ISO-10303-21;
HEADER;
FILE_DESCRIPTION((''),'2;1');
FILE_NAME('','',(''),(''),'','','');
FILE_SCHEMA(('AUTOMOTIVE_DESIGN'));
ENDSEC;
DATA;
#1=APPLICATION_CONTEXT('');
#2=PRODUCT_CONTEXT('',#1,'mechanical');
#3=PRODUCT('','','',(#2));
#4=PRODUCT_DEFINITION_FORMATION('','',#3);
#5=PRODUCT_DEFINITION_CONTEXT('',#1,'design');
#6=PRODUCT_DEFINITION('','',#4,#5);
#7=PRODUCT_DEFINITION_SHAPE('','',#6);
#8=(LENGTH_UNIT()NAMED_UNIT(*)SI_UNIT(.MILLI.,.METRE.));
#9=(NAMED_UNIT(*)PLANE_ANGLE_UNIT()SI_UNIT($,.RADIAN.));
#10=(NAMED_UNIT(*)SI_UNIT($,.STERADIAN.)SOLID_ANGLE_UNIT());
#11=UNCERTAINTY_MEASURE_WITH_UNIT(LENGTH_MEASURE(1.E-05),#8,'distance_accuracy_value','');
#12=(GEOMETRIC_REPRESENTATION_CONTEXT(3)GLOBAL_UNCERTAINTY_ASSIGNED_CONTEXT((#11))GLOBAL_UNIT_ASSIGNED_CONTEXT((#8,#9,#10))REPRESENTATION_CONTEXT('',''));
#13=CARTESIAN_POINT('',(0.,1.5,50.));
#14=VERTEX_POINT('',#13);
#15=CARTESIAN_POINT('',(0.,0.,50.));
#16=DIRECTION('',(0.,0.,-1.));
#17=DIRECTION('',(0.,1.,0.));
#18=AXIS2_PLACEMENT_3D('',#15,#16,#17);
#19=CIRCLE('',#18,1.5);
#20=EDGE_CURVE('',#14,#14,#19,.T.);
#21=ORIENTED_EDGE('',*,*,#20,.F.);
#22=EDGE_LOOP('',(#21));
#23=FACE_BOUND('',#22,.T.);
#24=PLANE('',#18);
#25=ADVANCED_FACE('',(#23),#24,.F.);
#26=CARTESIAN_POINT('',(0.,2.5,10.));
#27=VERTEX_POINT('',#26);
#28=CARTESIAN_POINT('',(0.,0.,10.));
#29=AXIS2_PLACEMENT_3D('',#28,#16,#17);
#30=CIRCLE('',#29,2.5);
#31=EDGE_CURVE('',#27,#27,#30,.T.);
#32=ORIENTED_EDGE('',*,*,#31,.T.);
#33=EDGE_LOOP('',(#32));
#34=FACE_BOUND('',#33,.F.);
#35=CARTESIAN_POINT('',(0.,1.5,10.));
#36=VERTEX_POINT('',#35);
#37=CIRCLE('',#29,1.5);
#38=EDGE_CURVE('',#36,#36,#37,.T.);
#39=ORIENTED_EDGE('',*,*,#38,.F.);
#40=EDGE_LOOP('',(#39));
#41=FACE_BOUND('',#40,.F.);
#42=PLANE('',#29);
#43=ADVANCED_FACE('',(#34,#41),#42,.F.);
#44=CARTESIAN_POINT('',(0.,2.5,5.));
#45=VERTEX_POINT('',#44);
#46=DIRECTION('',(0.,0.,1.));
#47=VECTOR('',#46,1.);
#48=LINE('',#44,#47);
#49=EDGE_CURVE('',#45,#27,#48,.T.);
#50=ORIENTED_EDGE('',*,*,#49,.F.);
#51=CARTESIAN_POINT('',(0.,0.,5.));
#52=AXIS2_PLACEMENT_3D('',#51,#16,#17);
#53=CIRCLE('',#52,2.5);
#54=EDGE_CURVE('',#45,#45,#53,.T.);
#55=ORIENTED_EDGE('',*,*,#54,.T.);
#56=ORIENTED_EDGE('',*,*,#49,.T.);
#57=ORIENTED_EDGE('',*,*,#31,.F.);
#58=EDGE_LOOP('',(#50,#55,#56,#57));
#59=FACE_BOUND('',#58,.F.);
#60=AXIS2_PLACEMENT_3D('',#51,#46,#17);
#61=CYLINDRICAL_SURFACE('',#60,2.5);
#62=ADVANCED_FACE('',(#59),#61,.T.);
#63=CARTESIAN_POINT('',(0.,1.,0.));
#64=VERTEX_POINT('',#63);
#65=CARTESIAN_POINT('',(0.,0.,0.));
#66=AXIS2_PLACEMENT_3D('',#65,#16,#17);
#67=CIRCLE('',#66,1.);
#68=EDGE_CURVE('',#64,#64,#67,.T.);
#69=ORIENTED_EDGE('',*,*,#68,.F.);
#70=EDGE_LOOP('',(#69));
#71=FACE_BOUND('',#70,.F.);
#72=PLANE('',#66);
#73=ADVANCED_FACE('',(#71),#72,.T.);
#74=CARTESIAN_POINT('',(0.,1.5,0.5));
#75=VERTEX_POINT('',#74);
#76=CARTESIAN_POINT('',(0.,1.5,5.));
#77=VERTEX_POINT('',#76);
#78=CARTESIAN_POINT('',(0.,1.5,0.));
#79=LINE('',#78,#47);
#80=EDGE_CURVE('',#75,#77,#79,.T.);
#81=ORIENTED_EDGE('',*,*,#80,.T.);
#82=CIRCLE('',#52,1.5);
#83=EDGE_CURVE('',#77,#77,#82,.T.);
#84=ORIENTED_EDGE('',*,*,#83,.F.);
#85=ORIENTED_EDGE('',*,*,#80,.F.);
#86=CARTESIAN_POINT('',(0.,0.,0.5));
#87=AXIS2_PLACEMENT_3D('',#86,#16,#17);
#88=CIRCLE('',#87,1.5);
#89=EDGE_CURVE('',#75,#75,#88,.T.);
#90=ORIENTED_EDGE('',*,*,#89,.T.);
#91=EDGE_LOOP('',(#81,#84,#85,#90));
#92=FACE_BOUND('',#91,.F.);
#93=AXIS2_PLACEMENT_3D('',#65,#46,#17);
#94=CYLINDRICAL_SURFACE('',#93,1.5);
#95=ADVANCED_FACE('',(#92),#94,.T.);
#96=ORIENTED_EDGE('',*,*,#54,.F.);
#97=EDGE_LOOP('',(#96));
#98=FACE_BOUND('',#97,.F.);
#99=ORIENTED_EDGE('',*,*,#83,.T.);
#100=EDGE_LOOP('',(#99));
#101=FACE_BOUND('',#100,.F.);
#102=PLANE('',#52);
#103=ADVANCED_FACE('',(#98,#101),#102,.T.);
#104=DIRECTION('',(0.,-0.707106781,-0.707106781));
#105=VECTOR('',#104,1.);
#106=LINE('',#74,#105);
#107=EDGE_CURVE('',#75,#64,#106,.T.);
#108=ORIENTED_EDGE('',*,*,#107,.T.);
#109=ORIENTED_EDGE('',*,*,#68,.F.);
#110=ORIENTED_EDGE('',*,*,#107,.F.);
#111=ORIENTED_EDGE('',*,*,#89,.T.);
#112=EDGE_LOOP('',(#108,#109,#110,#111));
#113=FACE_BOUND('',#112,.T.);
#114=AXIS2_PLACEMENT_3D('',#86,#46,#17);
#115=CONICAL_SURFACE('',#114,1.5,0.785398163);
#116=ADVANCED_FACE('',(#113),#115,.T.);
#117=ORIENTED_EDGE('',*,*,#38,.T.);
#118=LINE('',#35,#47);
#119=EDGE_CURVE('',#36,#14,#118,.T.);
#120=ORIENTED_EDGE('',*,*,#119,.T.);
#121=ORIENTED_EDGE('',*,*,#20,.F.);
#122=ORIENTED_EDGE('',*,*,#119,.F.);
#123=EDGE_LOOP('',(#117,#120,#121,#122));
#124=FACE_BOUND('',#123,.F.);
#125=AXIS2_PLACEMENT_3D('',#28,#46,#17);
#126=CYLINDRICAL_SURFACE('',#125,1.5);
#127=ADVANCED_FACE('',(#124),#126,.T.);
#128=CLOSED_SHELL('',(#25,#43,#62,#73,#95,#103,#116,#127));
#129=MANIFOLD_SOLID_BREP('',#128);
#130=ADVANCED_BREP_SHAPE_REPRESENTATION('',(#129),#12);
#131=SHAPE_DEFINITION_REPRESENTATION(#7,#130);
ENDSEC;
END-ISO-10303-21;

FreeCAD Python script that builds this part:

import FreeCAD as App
import Part
import Sketcher
from FreeCAD import Vector
Q = App.Units.Quantity


def edges_at(feature, points):
    """Names of the edges that pass closest to the given points."""
    edges = feature.Shape.Edges
    near = lambda p: min(range(len(edges)), key=lambda i: edges[i].distToShape(Part.Vertex(*p))[0])
    return sorted({f"Edge{near(p) + 1}" for p in points})

doc = App.newDocument("Part")
body = doc.addObject("PartDesign::Body", "Body")

# Sketch on YZ plane
sketch1 = doc.addObject("Sketcher::SketchObject", "Sketch")
body.addObject(sketch1)
sketch1.AttachmentSupport = (doc.YZ_Plane, [""])
sketch1.MapMode = "FlatFace"
sketch1.addGeometry([
    Part.LineSegment(Vector(0, 50, 0), Vector(0, 0, 0)),  # 0
    Part.LineSegment(Vector(0, 0, 0), Vector(1.5, 0, 0)),  # 1
    Part.LineSegment(Vector(1.5, 0, 0), Vector(1.5, 5, 0)),  # 2
    Part.LineSegment(Vector(1.5, 5, 0), Vector(2.5, 5, 0)),  # 3
    Part.LineSegment(Vector(2.5, 5, 0), Vector(2.5, 10, 0)),  # 4
    Part.LineSegment(Vector(2.5, 10, 0), Vector(1.5, 10, 0)),  # 5
    Part.LineSegment(Vector(1.5, 10, 0), Vector(1.5, 50, 0)),  # 6
    Part.LineSegment(Vector(1.5, 50, 0), Vector(0, 50, 0)),  # 7
], False)
sketch1.addConstraint([
    Sketcher.Constraint("Coincident", 0, 2, 1, 1),
    Sketcher.Constraint("Coincident", 1, 2, 2, 1),
    Sketcher.Constraint("Coincident", 2, 2, 3, 1),
    Sketcher.Constraint("Coincident", 3, 2, 4, 1),
    Sketcher.Constraint("Coincident", 4, 2, 5, 1),
    Sketcher.Constraint("Coincident", 5, 2, 6, 1),
    Sketcher.Constraint("Coincident", 6, 2, 7, 1),
    Sketcher.Constraint("Coincident", 7, 2, 0, 1),
    Sketcher.Constraint("Vertical", 0),
    Sketcher.Constraint("Horizontal", 1),
    Sketcher.Constraint("Vertical", 2),
    Sketcher.Constraint("Horizontal", 3),
    Sketcher.Constraint("Vertical", 4),
    Sketcher.Constraint("Horizontal", 5),
    Sketcher.Constraint("Vertical", 6),
    Sketcher.Constraint("Horizontal", 7),
    Sketcher.Constraint("Coincident", 0, 2, -1, 1),
    Sketcher.Constraint("Vertical", 2, 2, 5, 2),
    Sketcher.Constraint("Equal", 2, 4),
    Sketcher.Constraint("DistanceX", 3, 1, 3, 2, Q("1 mm")),
    Sketcher.Constraint("DistanceY", 2, 1, 2, 2, Q("5 mm")),
    Sketcher.Constraint("DistanceY", 6, 1, 6, 2, Q("40 mm")),
    Sketcher.Constraint("DistanceX", 1, 1, 1, 2, Q("1.5 mm")),
])
revolution = doc.addObject("PartDesign::Revolution", "Revolution")
body.addObject(revolution)
revolution.Profile = sketch1
revolution.ReferenceAxis = (sketch1, ["V_Axis"])
revolution.Angle = 360
doc.recompute()

chamfer = doc.addObject("PartDesign::Chamfer", "Chamfer")
body.addObject(chamfer)
chamfer.Base = (revolution, edges_at(revolution, [(0, -1.5, 0)]))
chamfer.Size = 0.5

doc.recompute()
